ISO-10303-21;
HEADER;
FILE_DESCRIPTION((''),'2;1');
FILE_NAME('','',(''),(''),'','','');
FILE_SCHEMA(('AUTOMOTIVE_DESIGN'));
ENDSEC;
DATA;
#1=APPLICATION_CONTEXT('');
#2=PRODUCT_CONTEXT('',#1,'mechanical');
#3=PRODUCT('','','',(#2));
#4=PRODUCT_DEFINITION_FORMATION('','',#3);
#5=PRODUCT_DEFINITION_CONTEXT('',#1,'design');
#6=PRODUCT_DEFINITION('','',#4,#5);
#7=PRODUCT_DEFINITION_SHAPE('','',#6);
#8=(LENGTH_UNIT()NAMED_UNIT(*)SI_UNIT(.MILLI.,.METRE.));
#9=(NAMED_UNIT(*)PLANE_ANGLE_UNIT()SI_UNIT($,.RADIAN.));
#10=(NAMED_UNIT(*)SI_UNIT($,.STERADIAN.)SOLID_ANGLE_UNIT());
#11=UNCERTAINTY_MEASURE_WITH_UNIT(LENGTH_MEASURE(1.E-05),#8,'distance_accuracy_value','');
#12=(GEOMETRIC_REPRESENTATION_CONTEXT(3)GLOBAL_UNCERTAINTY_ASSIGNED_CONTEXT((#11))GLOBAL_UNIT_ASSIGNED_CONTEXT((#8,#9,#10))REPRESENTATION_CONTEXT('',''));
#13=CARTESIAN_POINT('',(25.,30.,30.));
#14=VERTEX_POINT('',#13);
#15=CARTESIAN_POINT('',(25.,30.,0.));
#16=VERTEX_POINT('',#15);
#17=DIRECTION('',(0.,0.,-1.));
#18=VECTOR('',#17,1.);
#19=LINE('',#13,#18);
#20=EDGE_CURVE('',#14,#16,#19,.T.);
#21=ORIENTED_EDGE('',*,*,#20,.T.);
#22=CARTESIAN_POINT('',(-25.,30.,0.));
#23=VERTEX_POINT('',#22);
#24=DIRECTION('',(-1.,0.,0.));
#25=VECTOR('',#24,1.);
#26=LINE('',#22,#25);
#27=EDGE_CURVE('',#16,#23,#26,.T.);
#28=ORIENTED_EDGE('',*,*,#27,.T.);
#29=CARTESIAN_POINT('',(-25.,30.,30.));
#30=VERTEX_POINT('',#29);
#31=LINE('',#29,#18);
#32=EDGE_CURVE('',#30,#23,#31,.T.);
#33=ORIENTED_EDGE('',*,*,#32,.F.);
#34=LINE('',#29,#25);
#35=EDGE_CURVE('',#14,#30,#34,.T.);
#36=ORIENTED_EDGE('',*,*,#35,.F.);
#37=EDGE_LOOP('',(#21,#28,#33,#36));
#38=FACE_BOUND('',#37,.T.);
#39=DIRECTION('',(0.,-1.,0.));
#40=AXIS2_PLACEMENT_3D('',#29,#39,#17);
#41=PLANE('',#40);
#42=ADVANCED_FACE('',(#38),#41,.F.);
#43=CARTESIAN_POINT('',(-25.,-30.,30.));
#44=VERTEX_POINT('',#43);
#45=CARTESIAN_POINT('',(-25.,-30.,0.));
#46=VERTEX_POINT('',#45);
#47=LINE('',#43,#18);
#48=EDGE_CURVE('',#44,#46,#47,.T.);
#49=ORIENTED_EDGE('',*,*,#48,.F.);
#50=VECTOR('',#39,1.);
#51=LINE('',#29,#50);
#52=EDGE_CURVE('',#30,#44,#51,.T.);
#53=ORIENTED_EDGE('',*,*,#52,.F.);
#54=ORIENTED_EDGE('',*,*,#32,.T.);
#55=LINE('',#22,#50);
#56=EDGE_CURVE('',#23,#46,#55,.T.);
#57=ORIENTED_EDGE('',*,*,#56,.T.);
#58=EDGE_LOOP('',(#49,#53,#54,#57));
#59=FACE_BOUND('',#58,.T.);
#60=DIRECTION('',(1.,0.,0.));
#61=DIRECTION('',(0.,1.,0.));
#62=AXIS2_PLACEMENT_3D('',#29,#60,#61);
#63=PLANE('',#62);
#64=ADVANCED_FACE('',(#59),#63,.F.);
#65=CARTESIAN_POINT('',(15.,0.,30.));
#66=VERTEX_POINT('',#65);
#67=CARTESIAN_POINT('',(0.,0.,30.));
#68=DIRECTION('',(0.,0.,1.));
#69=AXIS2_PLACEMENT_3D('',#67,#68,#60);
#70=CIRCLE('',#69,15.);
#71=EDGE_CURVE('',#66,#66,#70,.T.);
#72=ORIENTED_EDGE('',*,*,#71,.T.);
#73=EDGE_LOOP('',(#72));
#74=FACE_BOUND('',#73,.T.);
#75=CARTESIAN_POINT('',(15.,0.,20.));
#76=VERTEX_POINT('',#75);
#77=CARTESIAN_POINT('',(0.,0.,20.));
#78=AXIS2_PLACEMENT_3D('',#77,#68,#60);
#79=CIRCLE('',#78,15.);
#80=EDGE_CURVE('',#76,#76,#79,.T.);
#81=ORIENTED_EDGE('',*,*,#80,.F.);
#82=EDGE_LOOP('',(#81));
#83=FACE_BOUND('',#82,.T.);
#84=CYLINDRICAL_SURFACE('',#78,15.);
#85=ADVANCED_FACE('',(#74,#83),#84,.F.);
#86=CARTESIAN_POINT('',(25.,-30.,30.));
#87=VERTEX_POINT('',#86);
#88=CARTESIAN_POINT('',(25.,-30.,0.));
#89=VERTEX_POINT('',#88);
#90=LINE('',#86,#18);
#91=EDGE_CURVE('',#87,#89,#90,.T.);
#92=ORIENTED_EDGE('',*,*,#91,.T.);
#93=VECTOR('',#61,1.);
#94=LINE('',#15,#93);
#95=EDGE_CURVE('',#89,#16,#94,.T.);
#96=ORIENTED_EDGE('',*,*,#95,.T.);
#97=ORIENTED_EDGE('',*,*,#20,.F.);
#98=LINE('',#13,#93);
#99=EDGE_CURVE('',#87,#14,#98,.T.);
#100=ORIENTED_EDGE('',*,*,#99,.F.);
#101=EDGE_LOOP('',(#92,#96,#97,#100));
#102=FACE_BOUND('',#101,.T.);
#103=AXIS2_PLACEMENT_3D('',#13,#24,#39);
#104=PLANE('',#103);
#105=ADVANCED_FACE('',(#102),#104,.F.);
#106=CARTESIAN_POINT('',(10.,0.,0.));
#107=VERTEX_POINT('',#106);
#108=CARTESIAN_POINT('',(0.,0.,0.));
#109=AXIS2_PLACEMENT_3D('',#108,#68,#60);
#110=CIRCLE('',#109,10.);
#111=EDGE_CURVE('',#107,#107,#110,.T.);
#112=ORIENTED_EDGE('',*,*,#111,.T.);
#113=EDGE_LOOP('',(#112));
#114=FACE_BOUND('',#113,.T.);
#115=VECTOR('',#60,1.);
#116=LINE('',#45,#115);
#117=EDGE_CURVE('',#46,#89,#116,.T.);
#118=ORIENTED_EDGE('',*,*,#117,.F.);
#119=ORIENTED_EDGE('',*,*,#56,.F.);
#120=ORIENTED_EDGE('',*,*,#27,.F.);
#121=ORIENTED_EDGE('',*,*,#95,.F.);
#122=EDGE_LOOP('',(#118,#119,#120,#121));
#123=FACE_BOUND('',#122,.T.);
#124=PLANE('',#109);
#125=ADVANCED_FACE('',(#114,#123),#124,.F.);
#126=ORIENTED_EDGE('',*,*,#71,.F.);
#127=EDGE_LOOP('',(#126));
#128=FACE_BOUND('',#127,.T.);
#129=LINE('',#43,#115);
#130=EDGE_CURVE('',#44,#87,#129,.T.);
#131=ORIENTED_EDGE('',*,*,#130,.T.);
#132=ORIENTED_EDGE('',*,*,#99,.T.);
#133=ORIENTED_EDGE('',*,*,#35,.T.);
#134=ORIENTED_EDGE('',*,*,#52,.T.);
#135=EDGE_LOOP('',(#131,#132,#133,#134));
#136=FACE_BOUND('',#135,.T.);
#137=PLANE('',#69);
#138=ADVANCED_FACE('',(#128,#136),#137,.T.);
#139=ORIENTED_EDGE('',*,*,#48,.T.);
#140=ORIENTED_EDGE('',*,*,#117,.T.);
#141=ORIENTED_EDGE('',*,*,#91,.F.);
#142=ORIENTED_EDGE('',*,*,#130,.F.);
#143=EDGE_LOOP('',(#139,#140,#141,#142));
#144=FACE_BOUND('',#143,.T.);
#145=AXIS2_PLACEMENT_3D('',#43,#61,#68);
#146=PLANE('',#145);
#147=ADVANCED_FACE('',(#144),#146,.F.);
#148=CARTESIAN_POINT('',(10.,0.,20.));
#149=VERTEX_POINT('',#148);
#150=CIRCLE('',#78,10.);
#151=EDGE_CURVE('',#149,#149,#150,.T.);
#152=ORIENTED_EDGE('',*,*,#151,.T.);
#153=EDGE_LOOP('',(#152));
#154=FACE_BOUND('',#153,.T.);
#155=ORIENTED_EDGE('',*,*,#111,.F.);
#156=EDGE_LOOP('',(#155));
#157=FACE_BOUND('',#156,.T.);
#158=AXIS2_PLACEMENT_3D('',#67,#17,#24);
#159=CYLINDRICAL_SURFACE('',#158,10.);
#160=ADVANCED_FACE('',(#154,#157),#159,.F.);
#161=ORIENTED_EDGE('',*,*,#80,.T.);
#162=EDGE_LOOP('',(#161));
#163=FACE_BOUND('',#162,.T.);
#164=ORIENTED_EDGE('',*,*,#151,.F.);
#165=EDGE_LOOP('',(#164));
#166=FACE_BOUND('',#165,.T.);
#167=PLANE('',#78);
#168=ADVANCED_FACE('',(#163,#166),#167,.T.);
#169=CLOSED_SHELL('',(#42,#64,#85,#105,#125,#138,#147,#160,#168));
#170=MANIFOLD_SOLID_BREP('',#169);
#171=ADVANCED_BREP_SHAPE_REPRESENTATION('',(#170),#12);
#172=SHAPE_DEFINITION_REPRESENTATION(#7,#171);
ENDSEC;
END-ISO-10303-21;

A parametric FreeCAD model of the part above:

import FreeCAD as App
import Part
import Sketcher

V = App.Vector

doc = App.newDocument("Part")
params = doc.addObject("Spreadsheet::Sheet", "Params")
for row, (alias, value) in enumerate([
    ("sketch1_diameter", "20 mm"),
    ("sketch1_width", "50 mm"),
    ("sketch1_height", "60 mm"),
    ("pad1_length", "30 mm"),
    ("sketch2_diameter", "30 mm"),
    ("pocket1_length", "10 mm"),
], start=1):
    params.set(f"A{row}", alias)
    params.set(f"B{row}", "=" + value)
    params.setAlias(f"B{row}", alias)

body = doc.addObject("PartDesign::Body", "Body")

sketch1 = body.newObject("Sketcher::SketchObject", "Sketch")
sketch1.AttachmentSupport = (doc.getObject("XY_Plane"), [""])
sketch1.MapMode = "FlatFace"
sketch1.addGeometry([
    Part.LineSegment(V(-25, 30, 0), V(-25, -30, 0)),
    Part.LineSegment(V(-25, -30, 0), V(25, -30, 0)),
    Part.LineSegment(V(25, -30, 0), V(25, 30, 0)),
    Part.LineSegment(V(25, 30, 0), V(-25, 30, 0)),
    Part.Circle(V(0, 0, 0), V(0, 0, 1), 10),
], False)
sketch1.addConstraint([
    Sketcher.Constraint("Coincident", 0, 2, 1, 1),
    Sketcher.Constraint("Coincident", 1, 2, 2, 1),
    Sketcher.Constraint("Coincident", 2, 2, 3, 1),
    Sketcher.Constraint("Coincident", 3, 2, 0, 1),
    Sketcher.Constraint("Vertical", 0),
    Sketcher.Constraint("Horizontal", 1),
    Sketcher.Constraint("Vertical", 2),
    Sketcher.Constraint("Horizontal", 3),
    Sketcher.Constraint("Coincident", 4, 3, -1, 1),
    Sketcher.Constraint("Symmetric", 0, 2, 2, 2, -1, 1),
    Sketcher.Constraint("Diameter", 4, 20.0),
    Sketcher.Constraint("DistanceX", 1, 1, 1, 2, 50.0),
    Sketcher.Constraint("DistanceY", 0, 2, 0, 1, 60.0),
])
sketch1.setExpression("Constraints[10]", "Params.sketch1_diameter")
sketch1.setExpression("Constraints[11]", "Params.sketch1_width")
sketch1.setExpression("Constraints[12]", "Params.sketch1_height")
pad1 = body.newObject("PartDesign::Pad", "Pad")
pad1.Profile = sketch1
pad1.setExpression("Length", "Params.pad1_length")

sketch2 = body.newObject("Sketcher::SketchObject", "Sketch001")
sketch2.AttachmentSupport = (doc.getObject("XY_Plane"), [""])
sketch2.MapMode = "FlatFace"
sketch2.AttachmentOffset = App.Placement(V(0, 0, 30), App.Rotation())
sketch2.addGeometry(Part.Circle(V(0, 0, 0), V(0, 0, 1), 15), False)
sketch2.addConstraint([
    Sketcher.Constraint("Coincident", 0, 3, -1, 1),
    Sketcher.Constraint("Diameter", 0, 30.0),
])
sketch2.setExpression("Constraints[1]", "Params.sketch2_diameter")
pocket1 = body.newObject("PartDesign::Pocket", "Pocket")
pocket1.Profile = sketch2
pocket1.setExpression("Length", "Params.pocket1_length")

doc.recompute()
